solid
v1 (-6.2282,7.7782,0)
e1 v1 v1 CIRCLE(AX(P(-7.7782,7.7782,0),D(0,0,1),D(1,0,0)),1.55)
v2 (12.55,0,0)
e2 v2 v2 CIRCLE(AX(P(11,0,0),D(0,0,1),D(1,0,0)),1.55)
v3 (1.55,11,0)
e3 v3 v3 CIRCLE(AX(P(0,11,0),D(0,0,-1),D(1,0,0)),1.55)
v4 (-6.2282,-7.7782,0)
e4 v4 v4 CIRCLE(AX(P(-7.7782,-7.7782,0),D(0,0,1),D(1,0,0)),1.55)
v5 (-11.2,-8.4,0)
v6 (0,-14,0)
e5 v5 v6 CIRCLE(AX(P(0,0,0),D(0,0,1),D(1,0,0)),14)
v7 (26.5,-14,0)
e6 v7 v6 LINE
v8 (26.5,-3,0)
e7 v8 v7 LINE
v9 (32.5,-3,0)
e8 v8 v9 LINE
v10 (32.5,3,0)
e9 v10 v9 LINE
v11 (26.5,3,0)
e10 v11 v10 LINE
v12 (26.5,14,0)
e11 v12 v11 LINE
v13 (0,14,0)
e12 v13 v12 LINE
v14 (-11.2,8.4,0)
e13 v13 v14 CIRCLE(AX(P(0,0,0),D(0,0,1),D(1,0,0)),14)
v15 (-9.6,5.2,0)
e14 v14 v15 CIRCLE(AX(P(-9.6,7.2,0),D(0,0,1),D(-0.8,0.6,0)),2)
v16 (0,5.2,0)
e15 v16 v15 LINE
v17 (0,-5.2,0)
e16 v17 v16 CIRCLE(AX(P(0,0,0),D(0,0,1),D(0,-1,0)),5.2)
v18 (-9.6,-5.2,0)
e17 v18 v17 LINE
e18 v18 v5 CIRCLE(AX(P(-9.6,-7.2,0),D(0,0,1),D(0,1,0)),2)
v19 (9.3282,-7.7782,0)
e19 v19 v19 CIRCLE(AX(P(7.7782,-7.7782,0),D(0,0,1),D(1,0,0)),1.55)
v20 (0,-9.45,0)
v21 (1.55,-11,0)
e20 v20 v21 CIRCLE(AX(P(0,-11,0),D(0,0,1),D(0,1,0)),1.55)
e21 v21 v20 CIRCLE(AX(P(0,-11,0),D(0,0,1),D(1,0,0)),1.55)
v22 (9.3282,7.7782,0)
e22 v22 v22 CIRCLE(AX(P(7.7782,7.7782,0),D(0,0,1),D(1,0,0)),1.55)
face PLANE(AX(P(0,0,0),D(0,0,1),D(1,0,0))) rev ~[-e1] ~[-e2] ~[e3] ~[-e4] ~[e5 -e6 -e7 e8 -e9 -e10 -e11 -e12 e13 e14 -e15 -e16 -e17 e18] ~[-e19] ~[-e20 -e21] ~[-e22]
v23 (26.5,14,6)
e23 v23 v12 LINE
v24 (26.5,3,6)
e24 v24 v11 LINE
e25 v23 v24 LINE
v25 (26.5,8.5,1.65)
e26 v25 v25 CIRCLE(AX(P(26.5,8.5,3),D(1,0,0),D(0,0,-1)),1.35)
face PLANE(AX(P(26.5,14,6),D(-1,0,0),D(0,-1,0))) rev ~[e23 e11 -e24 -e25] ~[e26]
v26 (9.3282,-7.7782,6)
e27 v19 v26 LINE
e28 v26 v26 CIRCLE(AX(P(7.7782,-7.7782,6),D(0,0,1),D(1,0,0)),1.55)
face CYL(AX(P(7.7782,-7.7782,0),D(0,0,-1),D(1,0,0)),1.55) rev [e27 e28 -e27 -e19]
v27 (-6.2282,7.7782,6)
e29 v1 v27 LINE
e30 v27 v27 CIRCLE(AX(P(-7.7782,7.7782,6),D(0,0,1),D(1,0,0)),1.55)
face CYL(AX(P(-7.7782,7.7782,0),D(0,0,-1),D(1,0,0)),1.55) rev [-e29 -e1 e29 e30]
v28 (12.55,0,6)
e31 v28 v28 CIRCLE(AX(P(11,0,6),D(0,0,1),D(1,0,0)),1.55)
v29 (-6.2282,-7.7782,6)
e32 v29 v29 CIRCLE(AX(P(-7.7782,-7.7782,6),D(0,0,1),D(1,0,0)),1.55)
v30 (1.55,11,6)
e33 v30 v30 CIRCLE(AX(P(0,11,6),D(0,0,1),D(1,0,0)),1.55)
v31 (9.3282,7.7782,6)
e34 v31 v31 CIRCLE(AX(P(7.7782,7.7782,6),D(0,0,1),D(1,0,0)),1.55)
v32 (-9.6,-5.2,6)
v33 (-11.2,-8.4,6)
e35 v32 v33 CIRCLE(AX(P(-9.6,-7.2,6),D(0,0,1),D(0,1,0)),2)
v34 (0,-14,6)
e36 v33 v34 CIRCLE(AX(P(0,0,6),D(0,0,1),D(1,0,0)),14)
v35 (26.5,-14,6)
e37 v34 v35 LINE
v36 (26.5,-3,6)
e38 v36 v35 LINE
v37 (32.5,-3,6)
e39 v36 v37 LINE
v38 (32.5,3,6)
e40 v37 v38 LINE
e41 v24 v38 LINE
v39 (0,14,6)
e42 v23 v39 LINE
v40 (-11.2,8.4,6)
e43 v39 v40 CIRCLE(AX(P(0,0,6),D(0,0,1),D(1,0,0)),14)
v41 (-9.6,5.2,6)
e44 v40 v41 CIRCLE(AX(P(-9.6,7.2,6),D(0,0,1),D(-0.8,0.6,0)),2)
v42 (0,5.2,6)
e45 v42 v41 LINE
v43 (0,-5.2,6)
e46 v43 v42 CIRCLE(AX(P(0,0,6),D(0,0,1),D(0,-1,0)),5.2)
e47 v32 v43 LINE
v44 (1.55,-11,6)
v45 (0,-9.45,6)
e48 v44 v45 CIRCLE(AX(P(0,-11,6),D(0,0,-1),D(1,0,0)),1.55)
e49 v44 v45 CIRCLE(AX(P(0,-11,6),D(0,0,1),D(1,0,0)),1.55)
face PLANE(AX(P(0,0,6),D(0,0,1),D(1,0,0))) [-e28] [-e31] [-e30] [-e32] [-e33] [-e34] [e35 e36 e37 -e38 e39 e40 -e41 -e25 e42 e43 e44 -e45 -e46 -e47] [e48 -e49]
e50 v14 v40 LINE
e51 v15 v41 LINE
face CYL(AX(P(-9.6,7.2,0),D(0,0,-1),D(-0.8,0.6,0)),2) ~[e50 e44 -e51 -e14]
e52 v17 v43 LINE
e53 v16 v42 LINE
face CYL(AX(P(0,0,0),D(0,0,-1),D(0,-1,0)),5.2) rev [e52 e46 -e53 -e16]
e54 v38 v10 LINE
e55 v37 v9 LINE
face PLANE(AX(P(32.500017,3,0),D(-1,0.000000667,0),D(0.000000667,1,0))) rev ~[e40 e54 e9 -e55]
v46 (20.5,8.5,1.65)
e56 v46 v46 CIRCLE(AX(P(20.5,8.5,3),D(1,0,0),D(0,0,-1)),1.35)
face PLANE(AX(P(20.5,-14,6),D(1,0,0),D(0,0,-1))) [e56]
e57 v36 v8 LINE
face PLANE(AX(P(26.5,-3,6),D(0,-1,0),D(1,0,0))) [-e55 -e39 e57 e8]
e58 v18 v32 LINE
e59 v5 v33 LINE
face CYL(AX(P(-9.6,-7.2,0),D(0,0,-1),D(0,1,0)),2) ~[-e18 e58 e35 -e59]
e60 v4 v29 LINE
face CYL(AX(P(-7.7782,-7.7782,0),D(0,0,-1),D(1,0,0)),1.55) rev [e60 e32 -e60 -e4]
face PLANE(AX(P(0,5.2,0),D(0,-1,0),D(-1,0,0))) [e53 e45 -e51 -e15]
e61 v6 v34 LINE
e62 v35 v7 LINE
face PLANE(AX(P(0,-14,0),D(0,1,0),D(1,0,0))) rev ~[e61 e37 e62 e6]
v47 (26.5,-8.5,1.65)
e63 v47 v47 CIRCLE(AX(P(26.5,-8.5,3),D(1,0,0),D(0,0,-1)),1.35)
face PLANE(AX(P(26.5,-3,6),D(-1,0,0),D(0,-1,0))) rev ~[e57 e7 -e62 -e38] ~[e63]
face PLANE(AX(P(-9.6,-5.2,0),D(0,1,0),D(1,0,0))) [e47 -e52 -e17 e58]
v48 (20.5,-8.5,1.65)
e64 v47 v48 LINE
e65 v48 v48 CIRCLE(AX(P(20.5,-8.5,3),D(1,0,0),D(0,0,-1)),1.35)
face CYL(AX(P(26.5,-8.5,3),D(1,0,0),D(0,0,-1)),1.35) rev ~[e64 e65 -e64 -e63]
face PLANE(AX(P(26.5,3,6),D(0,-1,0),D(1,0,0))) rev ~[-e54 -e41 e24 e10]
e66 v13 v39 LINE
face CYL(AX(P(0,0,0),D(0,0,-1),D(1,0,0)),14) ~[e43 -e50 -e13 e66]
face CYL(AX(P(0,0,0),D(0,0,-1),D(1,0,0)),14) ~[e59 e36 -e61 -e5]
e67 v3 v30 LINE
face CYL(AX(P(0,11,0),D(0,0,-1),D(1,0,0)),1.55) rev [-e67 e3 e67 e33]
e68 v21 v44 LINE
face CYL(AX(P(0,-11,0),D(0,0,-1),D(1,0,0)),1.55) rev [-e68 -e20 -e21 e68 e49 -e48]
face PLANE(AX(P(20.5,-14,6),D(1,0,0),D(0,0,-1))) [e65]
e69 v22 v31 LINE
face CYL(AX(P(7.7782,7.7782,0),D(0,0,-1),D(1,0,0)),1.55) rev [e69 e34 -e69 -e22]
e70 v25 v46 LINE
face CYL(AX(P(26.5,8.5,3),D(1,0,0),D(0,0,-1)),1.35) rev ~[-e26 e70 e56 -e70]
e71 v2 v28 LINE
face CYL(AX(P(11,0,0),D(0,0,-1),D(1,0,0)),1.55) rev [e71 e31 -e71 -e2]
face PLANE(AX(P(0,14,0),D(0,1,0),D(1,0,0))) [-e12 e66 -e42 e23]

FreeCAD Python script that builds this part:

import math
import FreeCAD as App
import Part
import Sketcher

doc = App.newDocument("Part")
body = doc.addObject("PartDesign::Body", "Body")

sketch1 = doc.addObject("Sketcher::SketchObject", "Sketch")
body.addObject(sketch1)
sketch1.AttachmentSupport = (doc.XY_Plane, [""])
sketch1.MapMode = "FlatFace"
sketch1.addGeometry([
    Part.ArcOfCircle(Part.Circle(App.Vector(0, 0, 0), App.Vector(0, 0, 1), 14), math.radians(-143), math.radians(-90)),
    Part.LineSegment(App.Vector(0, -14, 0), App.Vector(32.5, -14, 0)),
    Part.LineSegment(App.Vector(32.5, -14, 0), App.Vector(32.5, 14, 0)),
    Part.LineSegment(App.Vector(32.5, 14, 0), App.Vector(0, 14, 0)),
    Part.ArcOfCircle(Part.Circle(App.Vector(0, 0, 0), App.Vector(0, 0, 1), 14), math.radians(90), math.radians(143)),
    Part.ArcOfCircle(Part.Circle(App.Vector(-9.6, 7.2, 0), App.Vector(0, 0, 1), 2), math.radians(143), math.radians(270)),
    Part.LineSegment(App.Vector(-9.6, 5.2, 0), App.Vector(0, 5.2, 0)),
    Part.ArcOfCircle(Part.Circle(App.Vector(0, 0, 0), App.Vector(0, 0, 1), 5.2), math.radians(-90), math.radians(90)),
    Part.LineSegment(App.Vector(0, -5.2, 0), App.Vector(-9.6, -5.2, 0)),
    Part.ArcOfCircle(Part.Circle(App.Vector(-9.6, -7.2, 0), App.Vector(0, 0, 1), 2), math.radians(90), math.radians(217)),
    Part.Circle(App.Vector(0, 11, 0), App.Vector(0, 0, 1), 1.6),
    Part.Circle(App.Vector(-7.8, -7.8, 0), App.Vector(0, 0, 1), 1.6),
    Part.Circle(App.Vector(0, -11, 0), App.Vector(0, 0, 1), 1.6),
    Part.Circle(App.Vector(7.8, -7.8, 0), App.Vector(0, 0, 1), 1.6),
    Part.Circle(App.Vector(7.8, 7.8, 0), App.Vector(0, 0, 1), 1.6),
    Part.Circle(App.Vector(11, 0, 0), App.Vector(0, 0, 1), 1.6),
    Part.Circle(App.Vector(-7.8, 7.8, 0), App.Vector(0, 0, 1), 1.6),
], False)
sketch1.addConstraint([
    Sketcher.Constraint("Tangent", 0, 2, 1, 1),
    Sketcher.Constraint("Coincident", 1, 2, 2, 1),
    Sketcher.Constraint("Coincident", 2, 2, 3, 1),
    Sketcher.Constraint("Tangent", 3, 2, 4, 1),
    Sketcher.Constraint("Tangent", 4, 2, 5, 1),
    Sketcher.Constraint("Tangent", 5, 2, 6, 1),
    Sketcher.Constraint("Tangent", 6, 2, 7, 2),
    Sketcher.Constraint("Tangent", 7, 1, 8, 1),
    Sketcher.Constraint("Tangent", 8, 2, 9, 1),
    Sketcher.Constraint("Tangent", 9, 2, 0, 1),
    Sketcher.Constraint("Horizontal", 1),
    Sketcher.Constraint("Vertical", 2),
    Sketcher.Constraint("Horizontal", 3),
    Sketcher.Constraint("Horizontal", 6),
    Sketcher.Constraint("Horizontal", 8),
    Sketcher.Constraint("Coincident", 0, 3, -1, 1),
    Sketcher.Constraint("Coincident", 4, 3, -1, 1),
    Sketcher.Constraint("Coincident", 7, 3, -1, 1),
    Sketcher.Constraint("Equal", 0, 4),
    Sketcher.Constraint("Equal", 5, 9),
    Sketcher.Constraint("Equal", 10, 11),
    Sketcher.Constraint("Equal", 11, 12),
    Sketcher.Constraint("Equal", 12, 13),
    Sketcher.Constraint("Equal", 13, 14),
    Sketcher.Constraint("Equal", 14, 15),
    Sketcher.Constraint("Equal", 15, 16),
    Sketcher.Constraint("Symmetric", 10, 3, 12, 3, -1, 1),
    Sketcher.Constraint("Symmetric", 11, 3, 14, 3, -1, 1),
    Sketcher.Constraint("Symmetric", 13, 3, 16, 3, -1, 1),
    Sketcher.Constraint("Symmetric", 11, 3, 13, 3, -2),
    Sketcher.Constraint("PointOnObject", 10, 3, -2),
    Sketcher.Constraint("PointOnObject", 15, 3, -1),
    Sketcher.Constraint("Radius", 5, 2.0),
    Sketcher.Constraint("Radius", 0, 14.0),
    Sketcher.Constraint("DistanceY", 0, 2, 12, 3, 3.0),
    Sketcher.Constraint("Diameter", 10, 3.1),
    Sketcher.Constraint("Radius", 7, 5.2),
    Sketcher.Constraint("DistanceX", 1, 1, 1, 2, 32.5),
    Sketcher.Constraint("DistanceX", -1, 1, 15, 3, 11.0),
    Sketcher.Constraint("DistanceX", 11, 3, -1, 1, 7.7782),
    Sketcher.Constraint("DistanceY", 11, 3, -1, 1, 7.7782),
])
pad1 = doc.addObject("PartDesign::Pad", "Pad")
body.addObject(pad1)
pad1.Profile = sketch1
pad1.Length = 6

sketch2 = doc.addObject("Sketcher::SketchObject", "Sketch001")
body.addObject(sketch2)
sketch2.AttachmentSupport = (doc.XY_Plane, [""])
sketch2.MapMode = "FlatFace"
sketch2.AttachmentOffset = App.Placement(App.Vector(0, 0, 6), App.Rotation())
sketch2.addGeometry([
    Part.LineSegment(App.Vector(26, -3, 0), App.Vector(26, -14, 0)),
    Part.LineSegment(App.Vector(26, -14, 0), App.Vector(32, -14, 0)),
    Part.LineSegment(App.Vector(32, -14, 0), App.Vector(32, -3, 0)),
    Part.LineSegment(App.Vector(32, -3, 0), App.Vector(26, -3, 0)),
    Part.LineSegment(App.Vector(26, 14, 0), App.Vector(26, 3, 0)),
    Part.LineSegment(App.Vector(26, 3, 0), App.Vector(32, 3, 0)),
    Part.LineSegment(App.Vector(32, 3, 0), App.Vector(32, 14, 0)),
    Part.LineSegment(App.Vector(32, 14, 0), App.Vector(26, 14, 0)),
], False)
sketch2.addConstraint([
    Sketcher.Constraint("Coincident", 0, 2, 1, 1),
    Sketcher.Constraint("Coincident", 1, 2, 2, 1),
    Sketcher.Constraint("Coincident", 2, 2, 3, 1),
    Sketcher.Constraint("Coincident", 3, 2, 0, 1),
    Sketcher.Constraint("Coincident", 4, 2, 5, 1),
    Sketcher.Constraint("Coincident", 5, 2, 6, 1),
    Sketcher.Constraint("Coincident", 6, 2, 7, 1),
    Sketcher.Constraint("Coincident", 7, 2, 4, 1),
    Sketcher.Constraint("Vertical", 0),
    Sketcher.Constraint("Horizontal", 1),
    Sketcher.Constraint("Vertical", 2),
    Sketcher.Constraint("Horizontal", 3),
    Sketcher.Constraint("Vertical", 4),
    Sketcher.Constraint("Horizontal", 5),
    Sketcher.Constraint("Vertical", 6),
    Sketcher.Constraint("Horizontal", 7),
    Sketcher.Constraint("Symmetric", 3, 2, 4, 2, -1),
    Sketcher.Constraint("Symmetric", 1, 2, 6, 2, -1),
    Sketcher.Constraint("DistanceX", 1, 1, 1, 2, 6.0),
    Sketcher.Constraint("DistanceY", 2, 2, -1, 1, 3.0),
    Sketcher.Constraint("DistanceY", 0, 2, 0, 1, 11.0),
    Sketcher.Constraint("DistanceX", -1, 1, 0, 2, 26.5),
])
pocket1 = doc.addObject("PartDesign::Pocket", "Pocket")
body.addObject(pocket1)
pocket1.Profile = sketch2
pocket1.Length = 6

sketch3 = doc.addObject("Sketcher::SketchObject", "Sketch002")
body.addObject(sketch3)
sketch3.AttachmentSupport = (doc.YZ_Plane, [""])
sketch3.MapMode = "FlatFace"
sketch3.AttachmentOffset = App.Placement(App.Vector(0, 0, 26.5), App.Rotation())
sketch3.addGeometry([
    Part.Circle(App.Vector(-8.5, 3, 0), App.Vector(0, 0, 1), 1.4),
    Part.Circle(App.Vector(8.5, 3, 0), App.Vector(0, 0, 1), 1.4),
], False)
sketch3.addConstraint([
    Sketcher.Constraint("Equal", 0, 1),
    Sketcher.Constraint("Symmetric", 0, 3, 1, 3, -2),
    Sketcher.Constraint("Diameter", 0, 2.7),
    Sketcher.Constraint("DistanceY", -1, 1, 0, 3, 3.0),
    Sketcher.Constraint("DistanceX", 0, 3, 1, 3, 17.0),
])
pocket2 = doc.addObject("PartDesign::Pocket", "Pocket001")
body.addObject(pocket2)
pocket2.Profile = sketch3
pocket2.Length = 6

doc.recompute()
